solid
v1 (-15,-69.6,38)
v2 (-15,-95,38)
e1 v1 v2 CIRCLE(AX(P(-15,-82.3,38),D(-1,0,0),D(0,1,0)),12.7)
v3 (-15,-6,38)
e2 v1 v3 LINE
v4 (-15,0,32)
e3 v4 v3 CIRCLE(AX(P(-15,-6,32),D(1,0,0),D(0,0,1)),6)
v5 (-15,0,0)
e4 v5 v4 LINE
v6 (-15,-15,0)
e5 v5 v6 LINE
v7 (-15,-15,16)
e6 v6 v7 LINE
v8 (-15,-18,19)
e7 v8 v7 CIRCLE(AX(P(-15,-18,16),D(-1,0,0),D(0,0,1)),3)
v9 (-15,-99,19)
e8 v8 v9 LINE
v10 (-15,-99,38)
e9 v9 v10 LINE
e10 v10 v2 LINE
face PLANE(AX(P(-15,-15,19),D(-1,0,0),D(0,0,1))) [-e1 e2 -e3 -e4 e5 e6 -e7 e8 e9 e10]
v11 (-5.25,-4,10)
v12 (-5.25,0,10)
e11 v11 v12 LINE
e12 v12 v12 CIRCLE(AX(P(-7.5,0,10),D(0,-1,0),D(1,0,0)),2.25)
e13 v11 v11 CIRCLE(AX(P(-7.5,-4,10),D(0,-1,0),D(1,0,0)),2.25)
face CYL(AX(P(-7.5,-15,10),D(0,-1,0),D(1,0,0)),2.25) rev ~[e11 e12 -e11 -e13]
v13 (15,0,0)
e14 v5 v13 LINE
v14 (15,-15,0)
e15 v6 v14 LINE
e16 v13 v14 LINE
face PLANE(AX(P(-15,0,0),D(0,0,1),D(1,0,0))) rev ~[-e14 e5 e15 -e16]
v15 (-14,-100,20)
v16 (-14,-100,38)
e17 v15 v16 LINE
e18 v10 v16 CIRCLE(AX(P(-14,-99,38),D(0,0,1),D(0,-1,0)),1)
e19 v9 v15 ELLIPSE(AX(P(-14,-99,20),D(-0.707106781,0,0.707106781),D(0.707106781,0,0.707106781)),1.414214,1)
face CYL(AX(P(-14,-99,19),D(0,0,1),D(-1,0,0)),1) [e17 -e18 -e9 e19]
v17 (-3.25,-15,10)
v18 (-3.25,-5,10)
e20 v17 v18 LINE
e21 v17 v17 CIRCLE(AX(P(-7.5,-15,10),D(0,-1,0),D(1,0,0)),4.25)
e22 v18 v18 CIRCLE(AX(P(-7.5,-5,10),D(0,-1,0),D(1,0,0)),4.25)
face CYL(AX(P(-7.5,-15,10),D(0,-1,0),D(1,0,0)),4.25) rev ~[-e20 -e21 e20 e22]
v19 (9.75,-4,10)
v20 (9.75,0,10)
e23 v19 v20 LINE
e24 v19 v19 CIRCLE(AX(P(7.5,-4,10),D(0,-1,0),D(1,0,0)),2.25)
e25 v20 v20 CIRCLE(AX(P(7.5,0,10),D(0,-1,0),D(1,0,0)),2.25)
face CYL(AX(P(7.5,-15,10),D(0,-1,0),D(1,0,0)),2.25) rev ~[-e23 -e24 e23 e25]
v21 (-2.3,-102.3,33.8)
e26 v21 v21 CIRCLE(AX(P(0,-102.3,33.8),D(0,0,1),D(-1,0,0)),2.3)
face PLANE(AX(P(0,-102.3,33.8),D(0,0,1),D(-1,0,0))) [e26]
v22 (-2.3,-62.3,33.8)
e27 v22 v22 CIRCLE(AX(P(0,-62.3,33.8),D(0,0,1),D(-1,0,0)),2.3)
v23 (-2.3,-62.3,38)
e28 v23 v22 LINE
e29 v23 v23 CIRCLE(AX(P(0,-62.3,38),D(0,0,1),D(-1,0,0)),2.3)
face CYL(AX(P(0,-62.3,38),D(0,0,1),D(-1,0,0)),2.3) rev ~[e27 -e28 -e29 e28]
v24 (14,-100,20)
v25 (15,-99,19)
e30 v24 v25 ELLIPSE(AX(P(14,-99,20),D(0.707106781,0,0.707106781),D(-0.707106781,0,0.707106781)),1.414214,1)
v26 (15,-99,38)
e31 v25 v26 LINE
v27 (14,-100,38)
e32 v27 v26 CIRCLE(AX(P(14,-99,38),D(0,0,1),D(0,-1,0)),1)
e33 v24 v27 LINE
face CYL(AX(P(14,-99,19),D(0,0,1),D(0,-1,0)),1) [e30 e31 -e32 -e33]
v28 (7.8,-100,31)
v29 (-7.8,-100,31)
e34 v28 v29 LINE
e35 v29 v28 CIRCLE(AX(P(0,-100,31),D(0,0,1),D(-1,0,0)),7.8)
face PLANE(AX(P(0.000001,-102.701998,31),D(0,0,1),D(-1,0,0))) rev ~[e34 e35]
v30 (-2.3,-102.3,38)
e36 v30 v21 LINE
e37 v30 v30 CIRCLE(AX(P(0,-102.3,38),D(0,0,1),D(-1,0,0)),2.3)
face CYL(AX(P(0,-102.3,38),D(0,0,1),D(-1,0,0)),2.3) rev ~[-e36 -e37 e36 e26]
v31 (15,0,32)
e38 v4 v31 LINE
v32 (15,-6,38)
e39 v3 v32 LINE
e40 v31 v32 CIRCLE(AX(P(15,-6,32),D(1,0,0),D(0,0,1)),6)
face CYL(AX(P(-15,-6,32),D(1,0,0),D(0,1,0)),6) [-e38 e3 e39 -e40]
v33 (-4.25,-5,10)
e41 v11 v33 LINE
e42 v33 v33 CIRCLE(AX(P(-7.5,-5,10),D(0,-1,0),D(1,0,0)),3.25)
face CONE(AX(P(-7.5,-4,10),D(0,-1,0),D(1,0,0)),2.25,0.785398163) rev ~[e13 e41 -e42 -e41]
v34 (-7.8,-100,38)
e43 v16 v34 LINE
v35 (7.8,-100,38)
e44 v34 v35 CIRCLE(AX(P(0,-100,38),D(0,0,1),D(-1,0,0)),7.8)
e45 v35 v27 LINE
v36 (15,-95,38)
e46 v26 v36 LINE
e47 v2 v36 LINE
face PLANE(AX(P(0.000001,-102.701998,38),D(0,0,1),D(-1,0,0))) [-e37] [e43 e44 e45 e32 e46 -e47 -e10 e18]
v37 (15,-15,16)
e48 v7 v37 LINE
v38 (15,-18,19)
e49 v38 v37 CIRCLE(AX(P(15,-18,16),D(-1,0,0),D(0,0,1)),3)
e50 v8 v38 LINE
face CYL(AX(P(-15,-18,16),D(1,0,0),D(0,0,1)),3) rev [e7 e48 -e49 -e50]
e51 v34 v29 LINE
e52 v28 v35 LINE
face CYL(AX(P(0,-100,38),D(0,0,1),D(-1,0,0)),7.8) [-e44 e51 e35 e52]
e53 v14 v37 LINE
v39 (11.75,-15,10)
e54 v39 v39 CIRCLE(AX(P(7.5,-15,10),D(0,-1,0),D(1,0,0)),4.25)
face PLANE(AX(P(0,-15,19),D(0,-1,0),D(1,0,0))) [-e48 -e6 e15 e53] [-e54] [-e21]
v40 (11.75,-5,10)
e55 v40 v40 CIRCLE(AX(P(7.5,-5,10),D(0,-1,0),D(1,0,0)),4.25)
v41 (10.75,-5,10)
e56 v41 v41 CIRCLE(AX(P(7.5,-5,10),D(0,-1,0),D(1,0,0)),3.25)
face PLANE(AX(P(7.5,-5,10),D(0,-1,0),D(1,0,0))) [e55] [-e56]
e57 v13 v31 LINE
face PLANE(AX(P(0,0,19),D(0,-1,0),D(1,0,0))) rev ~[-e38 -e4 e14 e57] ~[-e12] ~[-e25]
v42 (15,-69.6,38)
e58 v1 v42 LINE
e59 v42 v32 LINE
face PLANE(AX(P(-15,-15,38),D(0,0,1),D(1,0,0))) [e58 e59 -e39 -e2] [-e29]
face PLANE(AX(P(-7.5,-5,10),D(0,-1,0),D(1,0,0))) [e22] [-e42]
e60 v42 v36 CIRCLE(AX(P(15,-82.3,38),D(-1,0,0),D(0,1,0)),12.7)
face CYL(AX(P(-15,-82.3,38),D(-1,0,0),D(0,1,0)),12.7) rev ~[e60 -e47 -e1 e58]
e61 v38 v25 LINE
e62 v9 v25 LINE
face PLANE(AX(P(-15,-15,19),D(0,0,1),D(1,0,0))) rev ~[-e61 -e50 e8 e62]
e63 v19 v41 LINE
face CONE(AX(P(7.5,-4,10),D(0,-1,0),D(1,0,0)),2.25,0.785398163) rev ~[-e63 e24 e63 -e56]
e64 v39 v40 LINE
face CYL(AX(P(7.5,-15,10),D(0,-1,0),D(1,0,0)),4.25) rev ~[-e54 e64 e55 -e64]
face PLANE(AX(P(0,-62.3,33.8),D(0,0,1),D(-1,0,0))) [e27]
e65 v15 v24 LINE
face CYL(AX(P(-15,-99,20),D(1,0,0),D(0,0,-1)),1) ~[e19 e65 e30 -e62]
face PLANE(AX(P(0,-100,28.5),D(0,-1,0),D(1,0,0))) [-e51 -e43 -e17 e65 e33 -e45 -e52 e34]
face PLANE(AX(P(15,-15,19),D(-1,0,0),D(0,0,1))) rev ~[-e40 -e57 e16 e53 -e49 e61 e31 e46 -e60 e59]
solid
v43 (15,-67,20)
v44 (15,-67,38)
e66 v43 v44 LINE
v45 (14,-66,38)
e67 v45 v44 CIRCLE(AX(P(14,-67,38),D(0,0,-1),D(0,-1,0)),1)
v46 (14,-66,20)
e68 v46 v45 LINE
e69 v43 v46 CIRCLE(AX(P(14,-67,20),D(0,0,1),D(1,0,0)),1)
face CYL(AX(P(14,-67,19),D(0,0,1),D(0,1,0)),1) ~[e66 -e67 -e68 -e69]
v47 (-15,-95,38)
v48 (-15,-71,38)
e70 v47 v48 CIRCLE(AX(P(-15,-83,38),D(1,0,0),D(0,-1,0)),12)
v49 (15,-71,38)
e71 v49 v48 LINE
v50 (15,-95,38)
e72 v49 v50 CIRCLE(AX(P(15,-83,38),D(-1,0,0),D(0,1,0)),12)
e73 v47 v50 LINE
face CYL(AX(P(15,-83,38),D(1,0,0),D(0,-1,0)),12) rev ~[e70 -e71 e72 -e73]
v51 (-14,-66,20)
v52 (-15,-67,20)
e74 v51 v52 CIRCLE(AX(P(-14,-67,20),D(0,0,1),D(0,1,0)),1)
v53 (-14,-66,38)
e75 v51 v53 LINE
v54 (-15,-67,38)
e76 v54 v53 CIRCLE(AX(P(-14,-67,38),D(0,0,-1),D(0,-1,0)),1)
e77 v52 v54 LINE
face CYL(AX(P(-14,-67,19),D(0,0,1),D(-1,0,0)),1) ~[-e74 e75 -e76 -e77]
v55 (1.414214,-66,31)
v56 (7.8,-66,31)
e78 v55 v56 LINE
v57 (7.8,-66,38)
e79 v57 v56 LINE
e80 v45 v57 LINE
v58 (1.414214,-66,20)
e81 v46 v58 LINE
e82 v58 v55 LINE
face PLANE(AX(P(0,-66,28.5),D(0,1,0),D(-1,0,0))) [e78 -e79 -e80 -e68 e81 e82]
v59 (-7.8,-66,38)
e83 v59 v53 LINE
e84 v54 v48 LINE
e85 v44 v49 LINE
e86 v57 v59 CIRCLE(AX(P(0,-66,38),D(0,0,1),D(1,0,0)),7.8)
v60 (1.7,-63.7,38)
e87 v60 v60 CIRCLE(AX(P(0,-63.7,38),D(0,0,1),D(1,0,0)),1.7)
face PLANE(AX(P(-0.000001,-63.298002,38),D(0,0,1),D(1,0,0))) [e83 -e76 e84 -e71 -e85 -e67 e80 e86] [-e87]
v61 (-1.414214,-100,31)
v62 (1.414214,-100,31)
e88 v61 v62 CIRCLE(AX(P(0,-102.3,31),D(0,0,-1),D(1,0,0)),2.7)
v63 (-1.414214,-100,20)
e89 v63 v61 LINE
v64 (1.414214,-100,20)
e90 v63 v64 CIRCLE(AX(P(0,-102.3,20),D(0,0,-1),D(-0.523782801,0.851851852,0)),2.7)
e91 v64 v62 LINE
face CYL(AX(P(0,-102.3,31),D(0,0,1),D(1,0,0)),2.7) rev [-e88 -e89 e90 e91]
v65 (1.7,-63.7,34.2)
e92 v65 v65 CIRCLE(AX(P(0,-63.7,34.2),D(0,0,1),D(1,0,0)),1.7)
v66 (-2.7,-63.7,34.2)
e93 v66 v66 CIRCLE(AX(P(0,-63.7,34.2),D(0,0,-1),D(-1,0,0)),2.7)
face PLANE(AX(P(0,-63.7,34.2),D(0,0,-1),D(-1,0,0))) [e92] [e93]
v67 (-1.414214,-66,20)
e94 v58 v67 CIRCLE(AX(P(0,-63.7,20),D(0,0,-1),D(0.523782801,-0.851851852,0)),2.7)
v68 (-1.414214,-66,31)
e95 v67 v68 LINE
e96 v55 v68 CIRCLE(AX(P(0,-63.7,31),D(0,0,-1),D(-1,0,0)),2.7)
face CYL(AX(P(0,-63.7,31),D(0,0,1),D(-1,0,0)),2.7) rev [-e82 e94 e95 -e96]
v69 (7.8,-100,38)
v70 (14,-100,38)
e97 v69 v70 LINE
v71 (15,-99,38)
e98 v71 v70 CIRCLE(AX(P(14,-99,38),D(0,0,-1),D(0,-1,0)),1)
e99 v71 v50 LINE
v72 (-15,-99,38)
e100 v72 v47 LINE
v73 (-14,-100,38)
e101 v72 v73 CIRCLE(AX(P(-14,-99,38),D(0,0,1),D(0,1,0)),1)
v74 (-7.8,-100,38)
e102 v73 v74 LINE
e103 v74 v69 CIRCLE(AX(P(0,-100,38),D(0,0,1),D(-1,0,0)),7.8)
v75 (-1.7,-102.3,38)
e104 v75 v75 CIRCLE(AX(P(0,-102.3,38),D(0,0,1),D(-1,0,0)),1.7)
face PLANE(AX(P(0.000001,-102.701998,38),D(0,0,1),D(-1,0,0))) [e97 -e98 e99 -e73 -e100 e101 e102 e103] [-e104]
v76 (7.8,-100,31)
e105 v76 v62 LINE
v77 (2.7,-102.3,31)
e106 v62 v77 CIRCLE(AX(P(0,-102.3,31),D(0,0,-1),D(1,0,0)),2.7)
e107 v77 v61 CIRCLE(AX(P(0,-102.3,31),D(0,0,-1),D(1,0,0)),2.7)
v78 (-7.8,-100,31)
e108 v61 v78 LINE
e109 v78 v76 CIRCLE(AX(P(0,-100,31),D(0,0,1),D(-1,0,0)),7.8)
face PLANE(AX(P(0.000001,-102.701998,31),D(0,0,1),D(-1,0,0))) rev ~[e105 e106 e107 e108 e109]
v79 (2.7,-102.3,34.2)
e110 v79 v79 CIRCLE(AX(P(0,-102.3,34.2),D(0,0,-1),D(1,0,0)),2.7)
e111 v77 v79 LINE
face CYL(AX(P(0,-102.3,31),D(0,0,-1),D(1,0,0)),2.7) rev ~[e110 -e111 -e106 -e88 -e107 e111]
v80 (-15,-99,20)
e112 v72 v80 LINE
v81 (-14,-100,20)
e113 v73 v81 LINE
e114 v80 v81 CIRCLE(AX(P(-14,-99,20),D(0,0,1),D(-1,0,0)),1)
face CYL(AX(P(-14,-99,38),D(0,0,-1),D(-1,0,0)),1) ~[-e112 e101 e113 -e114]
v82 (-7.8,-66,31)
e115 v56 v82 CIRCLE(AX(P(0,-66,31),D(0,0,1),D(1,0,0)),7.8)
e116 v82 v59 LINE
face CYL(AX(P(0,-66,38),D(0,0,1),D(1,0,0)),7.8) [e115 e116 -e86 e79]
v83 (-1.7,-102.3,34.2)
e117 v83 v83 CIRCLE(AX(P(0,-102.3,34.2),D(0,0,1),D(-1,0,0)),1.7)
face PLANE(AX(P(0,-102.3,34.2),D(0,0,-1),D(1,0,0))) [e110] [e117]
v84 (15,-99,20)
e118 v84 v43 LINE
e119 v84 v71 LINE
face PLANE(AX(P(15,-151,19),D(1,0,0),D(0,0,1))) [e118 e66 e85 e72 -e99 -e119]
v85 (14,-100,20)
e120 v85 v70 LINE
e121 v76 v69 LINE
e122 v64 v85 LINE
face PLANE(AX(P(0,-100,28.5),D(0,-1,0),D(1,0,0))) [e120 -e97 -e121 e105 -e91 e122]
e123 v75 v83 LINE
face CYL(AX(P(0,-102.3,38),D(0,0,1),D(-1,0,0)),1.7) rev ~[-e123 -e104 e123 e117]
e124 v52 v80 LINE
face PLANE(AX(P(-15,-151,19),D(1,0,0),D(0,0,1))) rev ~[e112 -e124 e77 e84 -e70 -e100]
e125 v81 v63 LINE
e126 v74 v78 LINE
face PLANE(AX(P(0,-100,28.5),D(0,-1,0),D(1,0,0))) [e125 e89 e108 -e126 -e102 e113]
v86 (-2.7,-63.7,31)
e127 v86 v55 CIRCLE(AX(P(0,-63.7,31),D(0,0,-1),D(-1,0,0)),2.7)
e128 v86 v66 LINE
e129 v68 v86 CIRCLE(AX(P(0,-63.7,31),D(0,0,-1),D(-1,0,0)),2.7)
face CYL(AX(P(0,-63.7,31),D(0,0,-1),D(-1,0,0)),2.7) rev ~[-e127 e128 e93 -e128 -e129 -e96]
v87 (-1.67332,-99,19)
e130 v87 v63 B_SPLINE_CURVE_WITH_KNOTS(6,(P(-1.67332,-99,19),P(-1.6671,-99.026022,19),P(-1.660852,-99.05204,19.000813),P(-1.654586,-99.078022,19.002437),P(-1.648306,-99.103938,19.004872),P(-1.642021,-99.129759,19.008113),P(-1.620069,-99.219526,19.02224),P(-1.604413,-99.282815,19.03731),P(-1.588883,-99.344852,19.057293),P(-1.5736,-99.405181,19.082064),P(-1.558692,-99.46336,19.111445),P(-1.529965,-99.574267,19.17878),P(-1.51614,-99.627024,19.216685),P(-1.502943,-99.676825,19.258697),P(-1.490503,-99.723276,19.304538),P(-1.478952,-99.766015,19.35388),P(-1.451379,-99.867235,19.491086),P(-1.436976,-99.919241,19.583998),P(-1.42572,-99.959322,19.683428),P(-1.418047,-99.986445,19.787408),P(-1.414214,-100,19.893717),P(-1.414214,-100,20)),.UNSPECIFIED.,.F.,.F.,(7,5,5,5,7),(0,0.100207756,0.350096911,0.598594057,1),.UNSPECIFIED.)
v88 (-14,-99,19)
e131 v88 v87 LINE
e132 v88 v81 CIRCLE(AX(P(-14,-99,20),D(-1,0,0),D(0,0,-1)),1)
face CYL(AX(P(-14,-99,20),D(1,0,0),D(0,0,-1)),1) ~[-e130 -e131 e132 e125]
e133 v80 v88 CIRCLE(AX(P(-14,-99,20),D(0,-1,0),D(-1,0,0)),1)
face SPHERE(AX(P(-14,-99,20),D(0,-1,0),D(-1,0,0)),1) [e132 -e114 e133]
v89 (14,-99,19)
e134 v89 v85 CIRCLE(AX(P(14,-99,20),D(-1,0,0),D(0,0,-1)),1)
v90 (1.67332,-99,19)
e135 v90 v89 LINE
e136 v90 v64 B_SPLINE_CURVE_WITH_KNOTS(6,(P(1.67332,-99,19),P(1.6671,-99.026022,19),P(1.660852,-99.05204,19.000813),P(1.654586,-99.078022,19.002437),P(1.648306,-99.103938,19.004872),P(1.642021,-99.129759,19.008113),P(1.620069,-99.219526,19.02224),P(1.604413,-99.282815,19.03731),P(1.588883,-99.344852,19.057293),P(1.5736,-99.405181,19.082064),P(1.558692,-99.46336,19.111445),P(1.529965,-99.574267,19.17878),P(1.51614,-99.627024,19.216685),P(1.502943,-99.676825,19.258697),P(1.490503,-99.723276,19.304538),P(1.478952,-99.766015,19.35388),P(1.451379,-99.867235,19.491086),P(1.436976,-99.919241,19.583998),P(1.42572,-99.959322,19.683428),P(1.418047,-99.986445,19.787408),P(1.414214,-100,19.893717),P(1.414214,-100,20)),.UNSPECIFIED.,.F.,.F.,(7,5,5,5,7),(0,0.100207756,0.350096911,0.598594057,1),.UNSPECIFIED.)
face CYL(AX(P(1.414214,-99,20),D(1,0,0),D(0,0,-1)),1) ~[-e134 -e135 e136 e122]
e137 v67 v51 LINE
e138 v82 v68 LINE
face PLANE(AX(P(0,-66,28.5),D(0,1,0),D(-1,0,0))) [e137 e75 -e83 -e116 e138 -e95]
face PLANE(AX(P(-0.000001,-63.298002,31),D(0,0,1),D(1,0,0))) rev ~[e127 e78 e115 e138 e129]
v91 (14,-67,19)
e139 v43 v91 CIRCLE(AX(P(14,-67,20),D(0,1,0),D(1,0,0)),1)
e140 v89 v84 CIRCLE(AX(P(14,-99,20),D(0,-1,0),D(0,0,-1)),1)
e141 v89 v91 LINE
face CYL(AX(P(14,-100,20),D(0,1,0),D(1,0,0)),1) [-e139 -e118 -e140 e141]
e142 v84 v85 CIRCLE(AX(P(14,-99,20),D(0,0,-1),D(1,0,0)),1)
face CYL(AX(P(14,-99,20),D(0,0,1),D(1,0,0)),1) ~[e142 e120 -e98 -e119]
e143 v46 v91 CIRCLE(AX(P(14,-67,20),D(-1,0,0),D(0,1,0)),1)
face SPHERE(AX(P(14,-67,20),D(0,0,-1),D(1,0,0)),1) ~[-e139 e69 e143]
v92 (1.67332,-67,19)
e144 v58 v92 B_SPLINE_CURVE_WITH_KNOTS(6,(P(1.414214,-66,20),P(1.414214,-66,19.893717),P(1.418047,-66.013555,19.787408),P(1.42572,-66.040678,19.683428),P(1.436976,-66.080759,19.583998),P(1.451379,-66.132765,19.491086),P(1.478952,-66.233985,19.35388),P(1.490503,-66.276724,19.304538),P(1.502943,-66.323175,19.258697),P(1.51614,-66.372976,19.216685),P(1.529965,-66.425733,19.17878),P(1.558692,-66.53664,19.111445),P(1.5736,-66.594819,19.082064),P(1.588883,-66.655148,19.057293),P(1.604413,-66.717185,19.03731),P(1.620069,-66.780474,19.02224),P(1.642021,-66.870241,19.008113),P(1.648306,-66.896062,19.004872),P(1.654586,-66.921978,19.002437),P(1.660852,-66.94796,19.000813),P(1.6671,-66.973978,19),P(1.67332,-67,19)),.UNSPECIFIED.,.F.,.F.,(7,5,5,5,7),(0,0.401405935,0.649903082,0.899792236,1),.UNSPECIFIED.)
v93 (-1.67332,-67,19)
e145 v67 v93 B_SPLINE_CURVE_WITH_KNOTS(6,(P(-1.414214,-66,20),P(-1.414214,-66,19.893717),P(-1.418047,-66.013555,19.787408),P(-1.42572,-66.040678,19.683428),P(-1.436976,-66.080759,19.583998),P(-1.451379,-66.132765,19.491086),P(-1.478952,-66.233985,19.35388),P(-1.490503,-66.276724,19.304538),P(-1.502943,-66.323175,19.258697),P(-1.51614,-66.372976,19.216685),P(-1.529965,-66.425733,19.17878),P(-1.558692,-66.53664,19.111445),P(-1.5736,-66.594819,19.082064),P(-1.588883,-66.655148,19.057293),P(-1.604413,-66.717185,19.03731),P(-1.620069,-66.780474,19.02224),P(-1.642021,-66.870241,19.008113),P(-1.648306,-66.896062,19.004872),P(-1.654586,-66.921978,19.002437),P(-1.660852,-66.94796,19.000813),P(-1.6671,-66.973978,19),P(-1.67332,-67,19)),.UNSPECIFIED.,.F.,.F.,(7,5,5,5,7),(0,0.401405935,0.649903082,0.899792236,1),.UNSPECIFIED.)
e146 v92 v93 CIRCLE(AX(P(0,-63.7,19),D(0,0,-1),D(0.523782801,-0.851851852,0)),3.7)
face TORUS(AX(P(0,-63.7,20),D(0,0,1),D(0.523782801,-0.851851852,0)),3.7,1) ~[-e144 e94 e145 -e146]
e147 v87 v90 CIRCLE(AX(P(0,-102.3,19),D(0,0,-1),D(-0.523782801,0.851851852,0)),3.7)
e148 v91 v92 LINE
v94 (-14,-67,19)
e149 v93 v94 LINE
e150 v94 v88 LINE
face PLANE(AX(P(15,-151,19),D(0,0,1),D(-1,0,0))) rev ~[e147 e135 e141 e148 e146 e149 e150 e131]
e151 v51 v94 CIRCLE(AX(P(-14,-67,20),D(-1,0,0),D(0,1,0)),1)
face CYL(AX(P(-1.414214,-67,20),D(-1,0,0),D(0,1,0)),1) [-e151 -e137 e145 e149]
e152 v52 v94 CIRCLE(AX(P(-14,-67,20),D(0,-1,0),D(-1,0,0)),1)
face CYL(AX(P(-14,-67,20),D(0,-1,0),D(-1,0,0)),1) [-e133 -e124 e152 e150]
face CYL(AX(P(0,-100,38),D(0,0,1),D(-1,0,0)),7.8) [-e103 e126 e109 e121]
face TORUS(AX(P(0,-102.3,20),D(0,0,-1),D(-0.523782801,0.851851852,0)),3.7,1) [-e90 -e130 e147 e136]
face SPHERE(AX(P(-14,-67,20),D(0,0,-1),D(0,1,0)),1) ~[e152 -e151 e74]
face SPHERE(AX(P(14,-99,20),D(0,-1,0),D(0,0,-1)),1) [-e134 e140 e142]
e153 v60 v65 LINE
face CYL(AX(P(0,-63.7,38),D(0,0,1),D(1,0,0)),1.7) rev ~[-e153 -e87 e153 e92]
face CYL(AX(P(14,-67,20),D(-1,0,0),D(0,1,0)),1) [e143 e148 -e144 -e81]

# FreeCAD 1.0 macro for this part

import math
import FreeCAD as App
import Part
import Sketcher


def edges_at(feature, points):
    """Names of the edges that pass closest to the given points."""
    edges = feature.Shape.Edges
    near = lambda p: min(range(len(edges)), key=lambda i: edges[i].distToShape(Part.Vertex(*p))[0])
    return sorted({f"Edge{near(p) + 1}" for p in points})


def add_polygon(sketch, points):
    """Adds a closed chain of lines whose ends are joined by coincident constraints."""
    first, n = sketch.GeometryCount, len(points)
    for a, b in zip(points, points[1:] + points[:1]):
        sketch.addGeometry(Part.LineSegment(App.Vector(*a, 0), App.Vector(*b, 0)), False)
    for i in range(n):
        sketch.addConstraint(Sketcher.Constraint("Coincident", first + i, 2, first + (i + 1) % n, 1))

doc = App.newDocument("Part")
params = doc.addObject("Spreadsheet::Sheet", "Params")
for row, (alias, value) in enumerate([
    ("sketch1_width", "30 mm"),
    ("sketch1_height", "38 mm"),
    ("pad1_length", "15 mm"),
    ("sketch2_width", "30 mm"),
    ("sketch2_height", "19 mm"),
    ("pad2_length", "85 mm"),
    ("sketch3_radius", "12.7 mm"),
    ("sketch4_diameter", "4.5 mm"),
    ("sketch5_diameter", "8.5 mm"),
    ("pocket3_length", "10 mm"),
    ("sketch6_radius", "7.8 mm"),
    ("pad3_length", "7 mm"),
    ("sketch7_diameter", "4.6 mm"),
    ("pocket4_length", "4.2 mm"),
    ("sketch8_diameter", "4.6 mm"),
    ("pocket5_length", "4.2 mm"),
    ("fillet_radius", "3 mm"),
    ("fillet2_radius", "6 mm"),
    ("fillet3_radius", "1 mm"),
    ("chamfer_size", "1 mm"),
    ("sketch9_width", "30 mm"),
    ("sketch9_height", "83 mm"),
    ("pad4_length", "38 mm"),
    ("sketch10_width", "30 mm"),
    ("sketch10_height", "38 mm"),
    ("pad5_length", "15 mm"),
    ("sketch11_width", "30 mm"),
    ("sketch11_height", "19 mm"),
    ("pad6_length", "85 mm"),
    ("sketch12_radius", "12 mm"),
    ("sketch13_diameter", "4.5 mm"),
    ("sketch14_diameter", "8.5 mm"),
    ("pocket8_length", "10 mm"),
    ("sketch15_radius", "7.8 mm"),
    ("pad7_length", "7 mm"),
    ("sketch16_diameter", "5.4 mm"),
    ("pocket9_length", "3.2 mm"),
    ("pocket9_length2", "12 mm"),
    ("sketch17_diameter", "3.4 mm"),
    ("sketch18_width", "30 mm"),
    ("sketch18_height", "83 mm"),
    ("pad8_length", "38 mm"),
    ("sketch19_width", "30 mm"),
    ("sketch19_height", "38 mm"),
    ("pad9_length", "15 mm"),
    ("sketch20_width", "30 mm"),
    ("sketch20_height", "19 mm"),
    ("pad10_length", "85 mm"),
    ("sketch21_radius", "12 mm"),
    ("sketch22_diameter", "4.5 mm"),
    ("sketch23_diameter", "8.5 mm"),
    ("pocket13_length", "10 mm"),
    ("sketch24_radius", "7.8 mm"),
    ("pad11_length", "7 mm"),
    ("sketch25_diameter", "5.4 mm"),
    ("pocket14_length", "3.2 mm"),
    ("pocket14_length2", "12 mm"),
    ("sketch26_diameter", "3.4 mm"),
    ("fillet4_radius", "1 mm"),
    ("fillet5_radius", "1 mm"),
    ("fillet6_radius", "1 mm"),
], start=1):
    params.set(f"A{row}", alias)
    params.set(f"B{row}", "=" + value)
    params.setAlias(f"B{row}", alias)

body = doc.addObject("PartDesign::Body", "Body")

# Sketch on XZ plane
sketch1 = body.newObject("Sketcher::SketchObject", "Sketch")
sketch1.AttachmentSupport = (doc.getObject("XZ_Plane"), [""])
sketch1.MapMode = "FlatFace"
add_polygon(sketch1, [(-15, 38), (-15, 0), (15, 0), (15, 38)])  # lines 0-3
sketch1.addConstraint([
    Sketcher.Constraint("Vertical", 0),
    Sketcher.Constraint("Horizontal", 1),
    Sketcher.Constraint("Vertical", 2),
    Sketcher.Constraint("Horizontal", 3),
    Sketcher.Constraint("Symmetric", 0, 2, 1, 2, -1, 1),
    Sketcher.Constraint("DistanceX", 1, 1, 1, 2, 30.0),
    Sketcher.Constraint("DistanceY", 0, 2, 0, 1, 38.0),
])
sketch1.setExpression("Constraints[9]", "Params.sketch1_width")
sketch1.setExpression("Constraints[10]", "Params.sketch1_height")
pad1 = body.newObject("PartDesign::Pad", "Pad")
pad1.Profile = sketch1
pad1.setExpression("Length", "Params.pad1_length")

# Sketch on XZ plane
sketch2 = body.newObject("Sketcher::SketchObject", "Sketch001")
sketch2.AttachmentSupport = (doc.getObject("XZ_Plane"), [""])
sketch2.MapMode = "FlatFace"
sketch2.AttachmentOffset = App.Placement(App.Vector(0, 0, 15), App.Rotation())
add_polygon(sketch2, [(-15, 38), (-15, 19), (15, 19), (15, 38)])  # lines 0-3
sketch2.addConstraint([
    Sketcher.Constraint("Vertical", 0),
    Sketcher.Constraint("Horizontal", 1),
    Sketcher.Constraint("Vertical", 2),
    Sketcher.Constraint("Horizontal", 3),
    Sketcher.Constraint("DistanceX", 1, 1, 1, 2, 30.0),
    Sketcher.Constraint("DistanceY", 0, 2, 0, 1, 19.0),
    Sketcher.Constraint("DistanceX", 0, 2, -1, 1, 15.0),
    Sketcher.Constraint("DistanceY", -1, 1, 0, 2, 19.0),
])
sketch2.setExpression("Constraints[8]", "Params.sketch2_width")
sketch2.setExpression("Constraints[9]", "Params.sketch2_height")
pad2 = body.newObject("PartDesign::Pad", "Pad001")
pad2.Profile = sketch2
pad2.setExpression("Length", "Params.pad2_length")

# Sketch on YZ plane
sketch3 = body.newObject("Sketcher::SketchObject", "Sketch002")
sketch3.AttachmentSupport = (doc.getObject("YZ_Plane"), [""])
sketch3.MapMode = "FlatFace"
sketch3.AttachmentOffset = App.Placement(App.Vector(0, 0, -15), App.Rotation())
sketch3.addGeometry([
    Part.ArcOfCircle(Part.Circle(App.Vector(-82.3, 38, 0), App.Vector(0, 0, 1), 12.7), math.radians(180), math.radians(360)),
    Part.LineSegment(App.Vector(-95, 38, 0), App.Vector(-69.6, 38, 0)),
], False)
sketch3.addConstraint([
    Sketcher.Constraint("Coincident", 0, 1, 1, 1),
    Sketcher.Constraint("Coincident", 1, 2, 0, 2),
    Sketcher.Constraint("Horizontal", 1),
    Sketcher.Constraint("Radius", 0, 12.7),
    Sketcher.Constraint("DistanceY", -1, 1, 0, 3, 38.0),
    Sketcher.Constraint("DistanceX", 0, 1, -1, 1, 95.0),
    Sketcher.Constraint("DistanceY", -1, 1, 0, 1, 38.0),
])
sketch3.setExpression("Constraints[3]", "Params.sketch3_radius")
pocket1 = body.newObject("PartDesign::Pocket", "Pocket")
pocket1.Profile = sketch3
pocket1.Type = "ThroughAll"
pocket1.Reversed = True

# Sketch on XZ plane
sketch4 = body.newObject("Sketcher::SketchObject", "Sketch003")
sketch4.AttachmentSupport = (doc.getObject("XZ_Plane"), [""])
sketch4.MapMode = "FlatFace"
sketch4.AttachmentOffset = App.Placement(App.Vector(0, 0, 15), App.Rotation())
sketch4.addGeometry([
    Part.Circle(App.Vector(-7.5, 10, 0), App.Vector(0, 0, 1), 2.25),
    Part.Circle(App.Vector(7.5, 10, 0), App.Vector(0, 0, 1), 2.25),
], False)
sketch4.addConstraint([
    Sketcher.Constraint("Equal", 0, 1),
    Sketcher.Constraint("Symmetric", 0, 3, 1, 3, -2),
    Sketcher.Constraint("Diameter", 0, 4.5),
    Sketcher.Constraint("DistanceY", -1, 1, 0, 3, 10.0),
    Sketcher.Constraint("DistanceX", 0, 3, 1, 3, 15.0),
])
sketch4.setExpression("Constraints[2]", "Params.sketch4_diameter")
pocket2 = body.newObject("PartDesign::Pocket", "Pocket001")
pocket2.Profile = sketch4
pocket2.Type = "ThroughAll"

# Sketch on XZ plane
sketch5 = body.newObject("Sketcher::SketchObject", "Sketch004")
sketch5.AttachmentSupport = (doc.getObject("XZ_Plane"), [""])
sketch5.MapMode = "FlatFace"
sketch5.AttachmentOffset = App.Placement(App.Vector(0, 0, 15), App.Rotation())
sketch5.addGeometry([
    Part.Circle(App.Vector(-7.5, 10, 0), App.Vector(0, 0, 1), 4.25),
    Part.Circle(App.Vector(7.5, 10, 0), App.Vector(0, 0, 1), 4.25),
], False)
sketch5.addConstraint([
    Sketcher.Constraint("Equal", 0, 1),
    Sketcher.Constraint("Symmetric", 0, 3, 1, 3, -2),
    Sketcher.Constraint("Diameter", 0, 8.5),
    Sketcher.Constraint("DistanceY", -1, 1, 0, 3, 10.0),
    Sketcher.Constraint("DistanceX", 0, 3, 1, 3, 15.0),
])
sketch5.setExpression("Constraints[2]", "Params.sketch5_diameter")
pocket3 = body.newObject("PartDesign::Pocket", "Pocket002")
pocket3.Profile = sketch5
pocket3.setExpression("Length", "Params.pocket3_length")

# Sketch on XY plane
sketch6 = body.newObject("Sketcher::SketchObject", "Sketch005")
sketch6.AttachmentSupport = (doc.getObject("XY_Plane"), [""])
sketch6.MapMode = "FlatFace"
sketch6.AttachmentOffset = App.Placement(App.Vector(0, 0, 38), App.Rotation())
sketch6.addGeometry([
    Part.ArcOfCircle(Part.Circle(App.Vector(0, -100, 0), App.Vector(0, 0, 1), 7.8), math.radians(180), math.radians(360.000022)),
    Part.LineSegment(App.Vector(7.8, -99.999997, 0), App.Vector(-7.8, -100, 0)),
], False)
sketch6.addConstraint([
    Sketcher.Constraint("Coincident", 0, 1, 1, 2),
    Sketcher.Constraint("Coincident", 1, 1, 0, 2),
    Sketcher.Constraint("Symmetric", 0, 1, 1, 1, -2),
    Sketcher.Constraint("Radius", 0, 7.8),
    Sketcher.Constraint("DistanceY", 0, 3, -1, 1, 100.0),
    Sketcher.Constraint("DistanceY", 0, 1, -1, 1, 100.0),
])
sketch6.setExpression("Constraints[3]", "Params.sketch6_radius")
pad3 = body.newObject("PartDesign::Pad", "Pad002")
pad3.Profile = sketch6
pad3.setExpression("Length", "Params.pad3_length")
pad3.Reversed = True

# Sketch on XY plane
sketch7 = body.newObject("Sketcher::SketchObject", "Sketch006")
sketch7.AttachmentSupport = (doc.getObject("XY_Plane"), [""])
sketch7.MapMode = "FlatFace"
sketch7.AttachmentOffset = App.Placement(App.Vector(0, 0, 38), App.Rotation())
sketch7.addGeometry(Part.Circle(App.Vector(0, -102.3, 0), App.Vector(0, 0, 1), 2.3), False)
sketch7.addConstraint([
    Sketcher.Constraint("PointOnObject", 0, 3, -2),
    Sketcher.Constraint("Diameter", 0, 4.6),
    Sketcher.Constraint("DistanceY", 0, 3, -1, 1, 102.3),
])
sketch7.setExpression("Constraints[1]", "Params.sketch7_diameter")
pocket4 = body.newObject("PartDesign::Pocket", "Pocket003")
pocket4.Profile = sketch7
pocket4.setExpression("Length", "Params.pocket4_length")

# Sketch on XY plane
sketch8 = body.newObject("Sketcher::SketchObject", "Sketch007")
sketch8.AttachmentSupport = (doc.getObject("XY_Plane"), [""])
sketch8.MapMode = "FlatFace"
sketch8.AttachmentOffset = App.Placement(App.Vector(0, 0, 38), App.Rotation())
sketch8.addGeometry(Part.Circle(App.Vector(0, -62.3, 0), App.Vector(0, 0, 1), 2.3), False)
sketch8.addConstraint([
    Sketcher.Constraint("PointOnObject", 0, 3, -2),
    Sketcher.Constraint("Diameter", 0, 4.6),
    Sketcher.Constraint("DistanceY", 0, 3, -1, 1, 62.3),
])
sketch8.setExpression("Constraints[1]", "Params.sketch8_diameter")
pocket5 = body.newObject("PartDesign::Pocket", "Pocket004")
pocket5.Profile = sketch8
pocket5.setExpression("Length", "Params.pocket5_length")
doc.recompute()

fillet = body.newObject("PartDesign::Fillet", "Fillet")
fillet.Base = (pocket5, edges_at(pocket5, [(0, -15, 19)]))
fillet.setExpression("Radius", "Params.fillet_radius")
doc.recompute()

fillet2 = body.newObject("PartDesign::Fillet", "Fillet001")
fillet2.Base = (fillet, edges_at(fillet, [(0, 0, 38)]))
fillet2.setExpression("Radius", "Params.fillet2_radius")
doc.recompute()

fillet3 = body.newObject("PartDesign::Fillet", "Fillet002")
fillet3.Base = (fillet2, edges_at(fillet2, [(15, -100, 28.5), (-15, -100, 28.5), (0, -100, 19)]))
fillet3.setExpression("Radius", "Params.fillet3_radius")
doc.recompute()

chamfer = body.newObject("PartDesign::Chamfer", "Chamfer")
chamfer.Base = (fillet3, edges_at(fillet3, [(-9.75, -5, 10), (5.25, -5, 10)]))
chamfer.setExpression("Size", "Params.chamfer_size")
body2 = doc.addObject("PartDesign::Body", "Body001")

# Sketch on XY plane
sketch9 = body2.newObject("Sketcher::SketchObject", "Sketch008")
sketch9.AttachmentSupport = (doc.getObject("XY_Plane001"), [""])
sketch9.MapMode = "FlatFace"
add_polygon(sketch9, [(-15, 0), (-15, -83), (15, -83), (15, 0)])  # lines 0-3
sketch9.addConstraint([
    Sketcher.Constraint("Vertical", 0),
    Sketcher.Constraint("Horizontal", 1),
    Sketcher.Constraint("Vertical", 2),
    Sketcher.Constraint("Horizontal", 3),
    Sketcher.Constraint("Symmetric", 2, 2, 3, 2, -1, 1),
    Sketcher.Constraint("DistanceX", 1, 1, 1, 2, 30.0),
    Sketcher.Constraint("DistanceY", 0, 2, 0, 1, 83.0),
])
sketch9.setExpression("Constraints[9]", "Params.sketch9_width")
sketch9.setExpression("Constraints[10]", "Params.sketch9_height")
pad4 = body2.newObject("PartDesign::Pad", "Pad003")
pad4.Profile = sketch9
pad4.setExpression("Length", "Params.pad4_length")
body3 = doc.addObject("PartDesign::Body", "Body002")

# Sketch on XZ plane
sketch10 = body3.newObject("Sketcher::SketchObject", "Sketch009")
sketch10.AttachmentSupport = (doc.getObject("XZ_Plane002"), [""])
sketch10.MapMode = "FlatFace"
add_polygon(sketch10, [(-15, 38), (-15, 0), (15, 0), (15, 38)])  # lines 0-3
sketch10.addConstraint([
    Sketcher.Constraint("Vertical", 0),
    Sketcher.Constraint("Horizontal", 1),
    Sketcher.Constraint("Vertical", 2),
    Sketcher.Constraint("Horizontal", 3),
    Sketcher.Constraint("Symmetric", 0, 2, 1, 2, -1, 1),
    Sketcher.Constraint("DistanceX", 1, 1, 1, 2, 30.0),
    Sketcher.Constraint("DistanceY", 0, 2, 0, 1, 38.0),
])
sketch10.setExpression("Constraints[9]", "Params.sketch10_width")
sketch10.setExpression("Constraints[10]", "Params.sketch10_height")
pad5 = body3.newObject("PartDesign::Pad", "Pad004")
pad5.Profile = sketch10
pad5.setExpression("Length", "Params.pad5_length")

# Sketch on XZ plane
sketch11 = body3.newObject("Sketcher::SketchObject", "Sketch010")
sketch11.AttachmentSupport = (doc.getObject("XZ_Plane002"), [""])
sketch11.MapMode = "FlatFace"
sketch11.AttachmentOffset = App.Placement(App.Vector(0, 0, 15), App.Rotation())
add_polygon(sketch11, [(-15, 38), (-15, 19), (15, 19), (15, 38)])  # lines 0-3
sketch11.addConstraint([
    Sketcher.Constraint("Vertical", 0),
    Sketcher.Constraint("Horizontal", 1),
    Sketcher.Constraint("Vertical", 2),
    Sketcher.Constraint("Horizontal", 3),
    Sketcher.Constraint("DistanceX", 1, 1, 1, 2, 30.0),
    Sketcher.Constraint("DistanceY", 0, 2, 0, 1, 19.0),
    Sketcher.Constraint("DistanceX", 0, 2, -1, 1, 15.0),
    Sketcher.Constraint("DistanceY", -1, 1, 0, 2, 19.0),
])
sketch11.setExpression("Constraints[8]", "Params.sketch11_width")
sketch11.setExpression("Constraints[9]", "Params.sketch11_height")
pad6 = body3.newObject("PartDesign::Pad", "Pad005")
pad6.Profile = sketch11
pad6.setExpression("Length", "Params.pad6_length")

# Sketch on YZ plane
sketch12 = body3.newObject("Sketcher::SketchObject", "Sketch011")
sketch12.AttachmentSupport = (doc.getObject("YZ_Plane002"), [""])
sketch12.MapMode = "FlatFace"
sketch12.AttachmentOffset = App.Placement(App.Vector(0, 0, -15), App.Rotation())
sketch12.addGeometry([
    Part.ArcOfCircle(Part.Circle(App.Vector(-83, 38, 0), App.Vector(0, 0, 1), 12), math.radians(180), math.radians(360)),
    Part.LineSegment(App.Vector(-95, 38, 0), App.Vector(-71, 38, 0)),
], False)
sketch12.addConstraint([
    Sketcher.Constraint("Coincident", 0, 1, 1, 1),
    Sketcher.Constraint("Coincident", 1, 2, 0, 2),
    Sketcher.Constraint("Horizontal", 1),
    Sketcher.Constraint("Radius", 0, 12.0),
    Sketcher.Constraint("DistanceX", 0, 3, -1, 1, 83.0),
    Sketcher.Constraint("DistanceY", -1, 1, 0, 3, 38.0),
    Sketcher.Constraint("DistanceY", -1, 1, 0, 1, 38.0),
])
sketch12.setExpression("Constraints[3]", "Params.sketch12_radius")
pocket6 = body3.newObject("PartDesign::Pocket", "Pocket005")
pocket6.Profile = sketch12
pocket6.Type = "ThroughAll"
pocket6.Reversed = True

# Sketch on XZ plane
sketch13 = body3.newObject("Sketcher::SketchObject", "Sketch012")
sketch13.AttachmentSupport = (doc.getObject("XZ_Plane002"), [""])
sketch13.MapMode = "FlatFace"
sketch13.AttachmentOffset = App.Placement(App.Vector(0, 0, 15), App.Rotation())
sketch13.addGeometry([
    Part.Circle(App.Vector(-7.5, 10, 0), App.Vector(0, 0, 1), 2.25),
    Part.Circle(App.Vector(7.5, 10, 0), App.Vector(0, 0, 1), 2.25),
], False)
sketch13.addConstraint([
    Sketcher.Constraint("Equal", 0, 1),
    Sketcher.Constraint("Symmetric", 0, 3, 1, 3, -2),
    Sketcher.Constraint("Diameter", 0, 4.5),
    Sketcher.Constraint("DistanceY", -1, 1, 0, 3, 10.0),
    Sketcher.Constraint("DistanceX", 0, 3, 1, 3, 15.0),
])
sketch13.setExpression("Constraints[2]", "Params.sketch13_diameter")
pocket7 = body3.newObject("PartDesign::Pocket", "Pocket006")
pocket7.Profile = sketch13
pocket7.Type = "ThroughAll"

# Sketch on XZ plane
sketch14 = body3.newObject("Sketcher::SketchObject", "Sketch013")
sketch14.AttachmentSupport = (doc.getObject("XZ_Plane002"), [""])
sketch14.MapMode = "FlatFace"
sketch14.AttachmentOffset = App.Placement(App.Vector(0, 0, 15), App.Rotation())
sketch14.addGeometry([
    Part.Circle(App.Vector(-7.5, 10, 0), App.Vector(0, 0, 1), 4.25),
    Part.Circle(App.Vector(7.5, 10, 0), App.Vector(0, 0, 1), 4.25),
], False)
sketch14.addConstraint([
    Sketcher.Constraint("Equal", 0, 1),
    Sketcher.Constraint("Symmetric", 0, 3, 1, 3, -2),
    Sketcher.Constraint("Diameter", 0, 8.5),
    Sketcher.Constraint("DistanceY", -1, 1, 0, 3, 10.0),
    Sketcher.Constraint("DistanceX", 0, 3, 1, 3, 15.0),
])
sketch14.setExpression("Constraints[2]", "Params.sketch14_diameter")
pocket8 = body3.newObject("PartDesign::Pocket", "Pocket007")
pocket8.Profile = sketch14
pocket8.setExpression("Length", "Params.pocket8_length")

# Sketch on XY plane
sketch15 = body3.newObject("Sketcher::SketchObject", "Sketch014")
sketch15.AttachmentSupport = (doc.getObject("XY_Plane002"), [""])
sketch15.MapMode = "FlatFace"
sketch15.AttachmentOffset = App.Placement(App.Vector(0, 0, 38), App.Rotation())
sketch15.addGeometry([
    Part.ArcOfCircle(Part.Circle(App.Vector(0, -100, 0), App.Vector(0, 0, 1), 7.8), math.radians(180), math.radians(360.000022)),
    Part.LineSegment(App.Vector(7.8, -99.999997, 0), App.Vector(-7.8, -100, 0)),
], False)
sketch15.addConstraint([
    Sketcher.Constraint("Coincident", 0, 1, 1, 2),
    Sketcher.Constraint("Coincident", 1, 1, 0, 2),
    Sketcher.Constraint("Symmetric", 0, 1, 1, 1, -2),
    Sketcher.Constraint("Radius", 0, 7.8),
    Sketcher.Constraint("DistanceY", 0, 3, -1, 1, 100.0),
    Sketcher.Constraint("DistanceY", 0, 1, -1, 1, 100.0),
])
sketch15.setExpression("Constraints[3]", "Params.sketch15_radius")
pad7 = body3.newObject("PartDesign::Pad", "Pad006")
pad7.Profile = sketch15
pad7.setExpression("Length", "Params.pad7_length")
pad7.Reversed = True

# Sketch on XY plane
sketch16 = body3.newObject("Sketcher::SketchObject", "Sketch015")
sketch16.AttachmentSupport = (doc.getObject("XY_Plane002"), [""])
sketch16.MapMode = "FlatFace"
sketch16.AttachmentOffset = App.Placement(App.Vector(0, 0, 31), App.Rotation())
sketch16.addGeometry(Part.Circle(App.Vector(0, -102.3, 0), App.Vector(0, 0, 1), 2.7), False)
sketch16.addConstraint([
    Sketcher.Constraint("PointOnObject", 0, 3, -2),
    Sketcher.Constraint("Diameter", 0, 5.4),
    Sketcher.Constraint("DistanceY", 0, 3, -1, 1, 102.3),
])
sketch16.setExpression("Constraints[1]", "Params.sketch16_diameter")
pocket9 = body3.newObject("PartDesign::Pocket", "Pocket008")
pocket9.Profile = sketch16
pocket9.Type = "TwoLengths"
pocket9.setExpression("Length", "Params.pocket9_length")
pocket9.setExpression("Length2", "Params.pocket9_length2")
pocket9.Reversed = True

# Sketch on XY plane
sketch17 = body3.newObject("Sketcher::SketchObject", "Sketch016")
sketch17.AttachmentSupport = (doc.getObject("XY_Plane002"), [""])
sketch17.MapMode = "FlatFace"
sketch17.AttachmentOffset = App.Placement(App.Vector(0, 0, 38), App.Rotation())
sketch17.addGeometry(Part.Circle(App.Vector(0, -102.3, 0), App.Vector(0, 0, 1), 1.7), False)
sketch17.addConstraint([
    Sketcher.Constraint("PointOnObject", 0, 3, -2),
    Sketcher.Constraint("Diameter", 0, 3.4),
    Sketcher.Constraint("DistanceY", 0, 3, -1, 1, 102.3),
])
sketch17.setExpression("Constraints[1]", "Params.sketch17_diameter")
pocket10 = body3.newObject("PartDesign::Pocket", "Pocket009")
pocket10.Profile = sketch17
pocket10.Type = "ThroughAll"
doc.recompute()

boolean = body3.newObject("PartDesign::Boolean", "Boolean")
boolean.Type = "Cut"
boolean.addObjects([body2])
body4 = doc.addObject("PartDesign::Body", "Body003")
doc.recompute()

body3.Placement = App.Placement(App.Vector(0, -166, 0), App.Rotation(App.Vector(0, 0, 1), 180))
boolean2 = body4.newObject("PartDesign::Boolean", "Boolean001")
boolean2.Type = "Fuse"
boolean2.addObjects([body3])
body5 = doc.addObject("PartDesign::Body", "Body004")

# Sketch on XY plane
sketch18 = body5.newObject("Sketcher::SketchObject", "Sketch017")
sketch18.AttachmentSupport = (doc.getObject("XY_Plane004"), [""])
sketch18.MapMode = "FlatFace"
add_polygon(sketch18, [(-15, 0), (-15, -83), (15, -83), (15, 0)])  # lines 0-3
sketch18.addConstraint([
    Sketcher.Constraint("Vertical", 0),
    Sketcher.Constraint("Horizontal", 1),
    Sketcher.Constraint("Vertical", 2),
    Sketcher.Constraint("Horizontal", 3),
    Sketcher.Constraint("Symmetric", 2, 2, 3, 2, -1, 1),
    Sketcher.Constraint("DistanceX", 1, 1, 1, 2, 30.0),
    Sketcher.Constraint("DistanceY", 0, 2, 0, 1, 83.0),
])
sketch18.setExpression("Constraints[9]", "Params.sketch18_width")
sketch18.setExpression("Constraints[10]", "Params.sketch18_height")
pad8 = body5.newObject("PartDesign::Pad", "Pad007")
pad8.Profile = sketch18
pad8.setExpression("Length", "Params.pad8_length")
body6 = doc.addObject("PartDesign::Body", "Body005")

# Sketch on XZ plane
sketch19 = body6.newObject("Sketcher::SketchObject", "Sketch018")
sketch19.AttachmentSupport = (doc.getObject("XZ_Plane005"), [""])
sketch19.MapMode = "FlatFace"
add_polygon(sketch19, [(-15, 38), (-15, 0), (15, 0), (15, 38)])  # lines 0-3
sketch19.addConstraint([
    Sketcher.Constraint("Vertical", 0),
    Sketcher.Constraint("Horizontal", 1),
    Sketcher.Constraint("Vertical", 2),
    Sketcher.Constraint("Horizontal", 3),
    Sketcher.Constraint("Symmetric", 0, 2, 1, 2, -1, 1),
    Sketcher.Constraint("DistanceX", 1, 1, 1, 2, 30.0),
    Sketcher.Constraint("DistanceY", 0, 2, 0, 1, 38.0),
])
sketch19.setExpression("Constraints[9]", "Params.sketch19_width")
sketch19.setExpression("Constraints[10]", "Params.sketch19_height")
pad9 = body6.newObject("PartDesign::Pad", "Pad008")
pad9.Profile = sketch19
pad9.setExpression("Length", "Params.pad9_length")

# Sketch on XZ plane
sketch20 = body6.newObject("Sketcher::SketchObject", "Sketch019")
sketch20.AttachmentSupport = (doc.getObject("XZ_Plane005"), [""])
sketch20.MapMode = "FlatFace"
sketch20.AttachmentOffset = App.Placement(App.Vector(0, 0, 15), App.Rotation())
add_polygon(sketch20, [(-15, 38), (-15, 19), (15, 19), (15, 38)])  # lines 0-3
sketch20.addConstraint([
    Sketcher.Constraint("Vertical", 0),
    Sketcher.Constraint("Horizontal", 1),
    Sketcher.Constraint("Vertical", 2),
    Sketcher.Constraint("Horizontal", 3),
    Sketcher.Constraint("DistanceX", 1, 1, 1, 2, 30.0),
    Sketcher.Constraint("DistanceY", 0, 2, 0, 1, 19.0),
    Sketcher.Constraint("DistanceX", 0, 2, -1, 1, 15.0),
    Sketcher.Constraint("DistanceY", -1, 1, 0, 2, 19.0),
])
sketch20.setExpression("Constraints[8]", "Params.sketch20_width")
sketch20.setExpression("Constraints[9]", "Params.sketch20_height")
pad10 = body6.newObject("PartDesign::Pad", "Pad009")
pad10.Profile = sketch20
pad10.setExpression("Length", "Params.pad10_length")

# Sketch on YZ plane
sketch21 = body6.newObject("Sketcher::SketchObject", "Sketch020")
sketch21.AttachmentSupport = (doc.getObject("YZ_Plane005"), [""])
sketch21.MapMode = "FlatFace"
sketch21.AttachmentOffset = App.Placement(App.Vector(0, 0, -15), App.Rotation())
sketch21.addGeometry([
    Part.ArcOfCircle(Part.Circle(App.Vector(-83, 38, 0), App.Vector(0, 0, 1), 12), math.radians(180), math.radians(360)),
    Part.LineSegment(App.Vector(-95, 38, 0), App.Vector(-71, 38, 0)),
], False)
sketch21.addConstraint([
    Sketcher.Constraint("Coincident", 0, 1, 1, 1),
    Sketcher.Constraint("Coincident", 1, 2, 0, 2),
    Sketcher.Constraint("Horizontal", 1),
    Sketcher.Constraint("Radius", 0, 12.0),
    Sketcher.Constraint("DistanceX", 0, 3, -1, 1, 83.0),
    Sketcher.Constraint("DistanceY", -1, 1, 0, 3, 38.0),
    Sketcher.Constraint("DistanceY", -1, 1, 0, 1, 38.0),
])
sketch21.setExpression("Constraints[3]", "Params.sketch21_radius")
pocket11 = body6.newObject("PartDesign::Pocket", "Pocket010")
pocket11.Profile = sketch21
pocket11.Type = "ThroughAll"
pocket11.Reversed = True

# Sketch on XZ plane
sketch22 = body6.newObject("Sketcher::SketchObject", "Sketch021")
sketch22.AttachmentSupport = (doc.getObject("XZ_Plane005"), [""])
sketch22.MapMode = "FlatFace"
sketch22.AttachmentOffset = App.Placement(App.Vector(0, 0, 15), App.Rotation())
sketch22.addGeometry([
    Part.Circle(App.Vector(-7.5, 10, 0), App.Vector(0, 0, 1), 2.25),
    Part.Circle(App.Vector(7.5, 10, 0), App.Vector(0, 0, 1), 2.25),
], False)
sketch22.addConstraint([
    Sketcher.Constraint("Equal", 0, 1),
    Sketcher.Constraint("Symmetric", 0, 3, 1, 3, -2),
    Sketcher.Constraint("Diameter", 0, 4.5),
    Sketcher.Constraint("DistanceY", -1, 1, 0, 3, 10.0),
    Sketcher.Constraint("DistanceX", 0, 3, 1, 3, 15.0),
])
sketch22.setExpression("Constraints[2]", "Params.sketch22_diameter")
pocket12 = body6.newObject("PartDesign::Pocket", "Pocket011")
pocket12.Profile = sketch22
pocket12.Type = "ThroughAll"

# Sketch on XZ plane
sketch23 = body6.newObject("Sketcher::SketchObject", "Sketch022")
sketch23.AttachmentSupport = (doc.getObject("XZ_Plane005"), [""])
sketch23.MapMode = "FlatFace"
sketch23.AttachmentOffset = App.Placement(App.Vector(0, 0, 15), App.Rotation())
sketch23.addGeometry([
    Part.Circle(App.Vector(-7.5, 10, 0), App.Vector(0, 0, 1), 4.25),
    Part.Circle(App.Vector(7.5, 10, 0), App.Vector(0, 0, 1), 4.25),
], False)
sketch23.addConstraint([
    Sketcher.Constraint("Equal", 0, 1),
    Sketcher.Constraint("Symmetric", 0, 3, 1, 3, -2),
    Sketcher.Constraint("Diameter", 0, 8.5),
    Sketcher.Constraint("DistanceY", -1, 1, 0, 3, 10.0),
    Sketcher.Constraint("DistanceX", 0, 3, 1, 3, 15.0),
])
sketch23.setExpression("Constraints[2]", "Params.sketch23_diameter")
pocket13 = body6.newObject("PartDesign::Pocket", "Pocket012")
pocket13.Profile = sketch23
pocket13.setExpression("Length", "Params.pocket13_length")

# Sketch on XY plane
sketch24 = body6.newObject("Sketcher::SketchObject", "Sketch023")
sketch24.AttachmentSupport = (doc.getObject("XY_Plane005"), [""])
sketch24.MapMode = "FlatFace"
sketch24.AttachmentOffset = App.Placement(App.Vector(0, 0, 38), App.Rotation())
sketch24.addGeometry([
    Part.ArcOfCircle(Part.Circle(App.Vector(0, -100, 0), App.Vector(0, 0, 1), 7.8), math.radians(180), math.radians(360.000022)),
    Part.LineSegment(App.Vector(7.8, -99.999997, 0), App.Vector(-7.8, -100, 0)),
], False)
sketch24.addConstraint([
    Sketcher.Constraint("Coincident", 0, 1, 1, 2),
    Sketcher.Constraint("Coincident", 1, 1, 0, 2),
    Sketcher.Constraint("Symmetric", 0, 1, 1, 1, -2),
    Sketcher.Constraint("Radius", 0, 7.8),
    Sketcher.Constraint("DistanceY", 0, 3, -1, 1, 100.0),
    Sketcher.Constraint("DistanceY", 0, 1, -1, 1, 100.0),
])
sketch24.setExpression("Constraints[3]", "Params.sketch24_radius")
pad11 = body6.newObject("PartDesign::Pad", "Pad010")
pad11.Profile = sketch24
pad11.setExpression("Length", "Params.pad11_length")
pad11.Reversed = True

# Sketch on XY plane
sketch25 = body6.newObject("Sketcher::SketchObject", "Sketch024")
sketch25.AttachmentSupport = (doc.getObject("XY_Plane005"), [""])
sketch25.MapMode = "FlatFace"
sketch25.AttachmentOffset = App.Placement(App.Vector(0, 0, 31), App.Rotation())
sketch25.addGeometry(Part.Circle(App.Vector(0, -102.3, 0), App.Vector(0, 0, 1), 2.7), False)
sketch25.addConstraint([
    Sketcher.Constraint("PointOnObject", 0, 3, -2),
    Sketcher.Constraint("Diameter", 0, 5.4),
    Sketcher.Constraint("DistanceY", 0, 3, -1, 1, 102.3),
])
sketch25.setExpression("Constraints[1]", "Params.sketch25_diameter")
pocket14 = body6.newObject("PartDesign::Pocket", "Pocket013")
pocket14.Profile = sketch25
pocket14.Type = "TwoLengths"
pocket14.setExpression("Length", "Params.pocket14_length")
pocket14.setExpression("Length2", "Params.pocket14_length2")
pocket14.Reversed = True

# Sketch on XY plane
sketch26 = body6.newObject("Sketcher::SketchObject", "Sketch025")
sketch26.AttachmentSupport = (doc.getObject("XY_Plane005"), [""])
sketch26.MapMode = "FlatFace"
sketch26.AttachmentOffset = App.Placement(App.Vector(0, 0, 38), App.Rotation())
sketch26.addGeometry(Part.Circle(App.Vector(0, -102.3, 0), App.Vector(0, 0, 1), 1.7), False)
sketch26.addConstraint([
    Sketcher.Constraint("PointOnObject", 0, 3, -2),
    Sketcher.Constraint("Diameter", 0, 3.4),
    Sketcher.Constraint("DistanceY", 0, 3, -1, 1, 102.3),
])
sketch26.setExpression("Constraints[1]", "Params.sketch26_diameter")
pocket15 = body6.newObject("PartDesign::Pocket", "Pocket014")
pocket15.Profile = sketch26
pocket15.Type = "ThroughAll"
doc.recompute()

boolean3 = body6.newObject("PartDesign::Boolean", "Boolean002")
boolean3.Type = "Cut"
boolean3.addObjects([body5])
doc.recompute()

boolean4 = body6.newObject("PartDesign::Boolean", "Boolean003")
boolean4.Type = "Fuse"
boolean4.addObjects([body4])
doc.recompute()

fillet4 = body6.newObject("PartDesign::Fillet", "Fillet003")
fillet4.Base = (boolean4, edges_at(boolean4, [(15, -66, 28.5), (-15, -66, 28.5)]))
fillet4.setExpression("Radius", "Params.fillet4_radius")
doc.recompute()

fillet5 = body6.newObject("PartDesign::Fillet", "Fillet004")
fillet5.Base = (fillet4, edges_at(fillet4, [(-7.707, -66, 19), (0, -66.4, 19), (7.707, -66, 19)]))
fillet5.setExpression("Radius", "Params.fillet5_radius")
doc.recompute()

fillet6 = body6.newObject("PartDesign::Fillet", "Fillet005")
fillet6.Base = (fillet5, edges_at(fillet5, [(7.707, -100, 19), (-7.707, -100, 19), (0, -99.6, 19)]))
fillet6.setExpression("Radius", "Params.fillet6_radius")

doc.recompute()
